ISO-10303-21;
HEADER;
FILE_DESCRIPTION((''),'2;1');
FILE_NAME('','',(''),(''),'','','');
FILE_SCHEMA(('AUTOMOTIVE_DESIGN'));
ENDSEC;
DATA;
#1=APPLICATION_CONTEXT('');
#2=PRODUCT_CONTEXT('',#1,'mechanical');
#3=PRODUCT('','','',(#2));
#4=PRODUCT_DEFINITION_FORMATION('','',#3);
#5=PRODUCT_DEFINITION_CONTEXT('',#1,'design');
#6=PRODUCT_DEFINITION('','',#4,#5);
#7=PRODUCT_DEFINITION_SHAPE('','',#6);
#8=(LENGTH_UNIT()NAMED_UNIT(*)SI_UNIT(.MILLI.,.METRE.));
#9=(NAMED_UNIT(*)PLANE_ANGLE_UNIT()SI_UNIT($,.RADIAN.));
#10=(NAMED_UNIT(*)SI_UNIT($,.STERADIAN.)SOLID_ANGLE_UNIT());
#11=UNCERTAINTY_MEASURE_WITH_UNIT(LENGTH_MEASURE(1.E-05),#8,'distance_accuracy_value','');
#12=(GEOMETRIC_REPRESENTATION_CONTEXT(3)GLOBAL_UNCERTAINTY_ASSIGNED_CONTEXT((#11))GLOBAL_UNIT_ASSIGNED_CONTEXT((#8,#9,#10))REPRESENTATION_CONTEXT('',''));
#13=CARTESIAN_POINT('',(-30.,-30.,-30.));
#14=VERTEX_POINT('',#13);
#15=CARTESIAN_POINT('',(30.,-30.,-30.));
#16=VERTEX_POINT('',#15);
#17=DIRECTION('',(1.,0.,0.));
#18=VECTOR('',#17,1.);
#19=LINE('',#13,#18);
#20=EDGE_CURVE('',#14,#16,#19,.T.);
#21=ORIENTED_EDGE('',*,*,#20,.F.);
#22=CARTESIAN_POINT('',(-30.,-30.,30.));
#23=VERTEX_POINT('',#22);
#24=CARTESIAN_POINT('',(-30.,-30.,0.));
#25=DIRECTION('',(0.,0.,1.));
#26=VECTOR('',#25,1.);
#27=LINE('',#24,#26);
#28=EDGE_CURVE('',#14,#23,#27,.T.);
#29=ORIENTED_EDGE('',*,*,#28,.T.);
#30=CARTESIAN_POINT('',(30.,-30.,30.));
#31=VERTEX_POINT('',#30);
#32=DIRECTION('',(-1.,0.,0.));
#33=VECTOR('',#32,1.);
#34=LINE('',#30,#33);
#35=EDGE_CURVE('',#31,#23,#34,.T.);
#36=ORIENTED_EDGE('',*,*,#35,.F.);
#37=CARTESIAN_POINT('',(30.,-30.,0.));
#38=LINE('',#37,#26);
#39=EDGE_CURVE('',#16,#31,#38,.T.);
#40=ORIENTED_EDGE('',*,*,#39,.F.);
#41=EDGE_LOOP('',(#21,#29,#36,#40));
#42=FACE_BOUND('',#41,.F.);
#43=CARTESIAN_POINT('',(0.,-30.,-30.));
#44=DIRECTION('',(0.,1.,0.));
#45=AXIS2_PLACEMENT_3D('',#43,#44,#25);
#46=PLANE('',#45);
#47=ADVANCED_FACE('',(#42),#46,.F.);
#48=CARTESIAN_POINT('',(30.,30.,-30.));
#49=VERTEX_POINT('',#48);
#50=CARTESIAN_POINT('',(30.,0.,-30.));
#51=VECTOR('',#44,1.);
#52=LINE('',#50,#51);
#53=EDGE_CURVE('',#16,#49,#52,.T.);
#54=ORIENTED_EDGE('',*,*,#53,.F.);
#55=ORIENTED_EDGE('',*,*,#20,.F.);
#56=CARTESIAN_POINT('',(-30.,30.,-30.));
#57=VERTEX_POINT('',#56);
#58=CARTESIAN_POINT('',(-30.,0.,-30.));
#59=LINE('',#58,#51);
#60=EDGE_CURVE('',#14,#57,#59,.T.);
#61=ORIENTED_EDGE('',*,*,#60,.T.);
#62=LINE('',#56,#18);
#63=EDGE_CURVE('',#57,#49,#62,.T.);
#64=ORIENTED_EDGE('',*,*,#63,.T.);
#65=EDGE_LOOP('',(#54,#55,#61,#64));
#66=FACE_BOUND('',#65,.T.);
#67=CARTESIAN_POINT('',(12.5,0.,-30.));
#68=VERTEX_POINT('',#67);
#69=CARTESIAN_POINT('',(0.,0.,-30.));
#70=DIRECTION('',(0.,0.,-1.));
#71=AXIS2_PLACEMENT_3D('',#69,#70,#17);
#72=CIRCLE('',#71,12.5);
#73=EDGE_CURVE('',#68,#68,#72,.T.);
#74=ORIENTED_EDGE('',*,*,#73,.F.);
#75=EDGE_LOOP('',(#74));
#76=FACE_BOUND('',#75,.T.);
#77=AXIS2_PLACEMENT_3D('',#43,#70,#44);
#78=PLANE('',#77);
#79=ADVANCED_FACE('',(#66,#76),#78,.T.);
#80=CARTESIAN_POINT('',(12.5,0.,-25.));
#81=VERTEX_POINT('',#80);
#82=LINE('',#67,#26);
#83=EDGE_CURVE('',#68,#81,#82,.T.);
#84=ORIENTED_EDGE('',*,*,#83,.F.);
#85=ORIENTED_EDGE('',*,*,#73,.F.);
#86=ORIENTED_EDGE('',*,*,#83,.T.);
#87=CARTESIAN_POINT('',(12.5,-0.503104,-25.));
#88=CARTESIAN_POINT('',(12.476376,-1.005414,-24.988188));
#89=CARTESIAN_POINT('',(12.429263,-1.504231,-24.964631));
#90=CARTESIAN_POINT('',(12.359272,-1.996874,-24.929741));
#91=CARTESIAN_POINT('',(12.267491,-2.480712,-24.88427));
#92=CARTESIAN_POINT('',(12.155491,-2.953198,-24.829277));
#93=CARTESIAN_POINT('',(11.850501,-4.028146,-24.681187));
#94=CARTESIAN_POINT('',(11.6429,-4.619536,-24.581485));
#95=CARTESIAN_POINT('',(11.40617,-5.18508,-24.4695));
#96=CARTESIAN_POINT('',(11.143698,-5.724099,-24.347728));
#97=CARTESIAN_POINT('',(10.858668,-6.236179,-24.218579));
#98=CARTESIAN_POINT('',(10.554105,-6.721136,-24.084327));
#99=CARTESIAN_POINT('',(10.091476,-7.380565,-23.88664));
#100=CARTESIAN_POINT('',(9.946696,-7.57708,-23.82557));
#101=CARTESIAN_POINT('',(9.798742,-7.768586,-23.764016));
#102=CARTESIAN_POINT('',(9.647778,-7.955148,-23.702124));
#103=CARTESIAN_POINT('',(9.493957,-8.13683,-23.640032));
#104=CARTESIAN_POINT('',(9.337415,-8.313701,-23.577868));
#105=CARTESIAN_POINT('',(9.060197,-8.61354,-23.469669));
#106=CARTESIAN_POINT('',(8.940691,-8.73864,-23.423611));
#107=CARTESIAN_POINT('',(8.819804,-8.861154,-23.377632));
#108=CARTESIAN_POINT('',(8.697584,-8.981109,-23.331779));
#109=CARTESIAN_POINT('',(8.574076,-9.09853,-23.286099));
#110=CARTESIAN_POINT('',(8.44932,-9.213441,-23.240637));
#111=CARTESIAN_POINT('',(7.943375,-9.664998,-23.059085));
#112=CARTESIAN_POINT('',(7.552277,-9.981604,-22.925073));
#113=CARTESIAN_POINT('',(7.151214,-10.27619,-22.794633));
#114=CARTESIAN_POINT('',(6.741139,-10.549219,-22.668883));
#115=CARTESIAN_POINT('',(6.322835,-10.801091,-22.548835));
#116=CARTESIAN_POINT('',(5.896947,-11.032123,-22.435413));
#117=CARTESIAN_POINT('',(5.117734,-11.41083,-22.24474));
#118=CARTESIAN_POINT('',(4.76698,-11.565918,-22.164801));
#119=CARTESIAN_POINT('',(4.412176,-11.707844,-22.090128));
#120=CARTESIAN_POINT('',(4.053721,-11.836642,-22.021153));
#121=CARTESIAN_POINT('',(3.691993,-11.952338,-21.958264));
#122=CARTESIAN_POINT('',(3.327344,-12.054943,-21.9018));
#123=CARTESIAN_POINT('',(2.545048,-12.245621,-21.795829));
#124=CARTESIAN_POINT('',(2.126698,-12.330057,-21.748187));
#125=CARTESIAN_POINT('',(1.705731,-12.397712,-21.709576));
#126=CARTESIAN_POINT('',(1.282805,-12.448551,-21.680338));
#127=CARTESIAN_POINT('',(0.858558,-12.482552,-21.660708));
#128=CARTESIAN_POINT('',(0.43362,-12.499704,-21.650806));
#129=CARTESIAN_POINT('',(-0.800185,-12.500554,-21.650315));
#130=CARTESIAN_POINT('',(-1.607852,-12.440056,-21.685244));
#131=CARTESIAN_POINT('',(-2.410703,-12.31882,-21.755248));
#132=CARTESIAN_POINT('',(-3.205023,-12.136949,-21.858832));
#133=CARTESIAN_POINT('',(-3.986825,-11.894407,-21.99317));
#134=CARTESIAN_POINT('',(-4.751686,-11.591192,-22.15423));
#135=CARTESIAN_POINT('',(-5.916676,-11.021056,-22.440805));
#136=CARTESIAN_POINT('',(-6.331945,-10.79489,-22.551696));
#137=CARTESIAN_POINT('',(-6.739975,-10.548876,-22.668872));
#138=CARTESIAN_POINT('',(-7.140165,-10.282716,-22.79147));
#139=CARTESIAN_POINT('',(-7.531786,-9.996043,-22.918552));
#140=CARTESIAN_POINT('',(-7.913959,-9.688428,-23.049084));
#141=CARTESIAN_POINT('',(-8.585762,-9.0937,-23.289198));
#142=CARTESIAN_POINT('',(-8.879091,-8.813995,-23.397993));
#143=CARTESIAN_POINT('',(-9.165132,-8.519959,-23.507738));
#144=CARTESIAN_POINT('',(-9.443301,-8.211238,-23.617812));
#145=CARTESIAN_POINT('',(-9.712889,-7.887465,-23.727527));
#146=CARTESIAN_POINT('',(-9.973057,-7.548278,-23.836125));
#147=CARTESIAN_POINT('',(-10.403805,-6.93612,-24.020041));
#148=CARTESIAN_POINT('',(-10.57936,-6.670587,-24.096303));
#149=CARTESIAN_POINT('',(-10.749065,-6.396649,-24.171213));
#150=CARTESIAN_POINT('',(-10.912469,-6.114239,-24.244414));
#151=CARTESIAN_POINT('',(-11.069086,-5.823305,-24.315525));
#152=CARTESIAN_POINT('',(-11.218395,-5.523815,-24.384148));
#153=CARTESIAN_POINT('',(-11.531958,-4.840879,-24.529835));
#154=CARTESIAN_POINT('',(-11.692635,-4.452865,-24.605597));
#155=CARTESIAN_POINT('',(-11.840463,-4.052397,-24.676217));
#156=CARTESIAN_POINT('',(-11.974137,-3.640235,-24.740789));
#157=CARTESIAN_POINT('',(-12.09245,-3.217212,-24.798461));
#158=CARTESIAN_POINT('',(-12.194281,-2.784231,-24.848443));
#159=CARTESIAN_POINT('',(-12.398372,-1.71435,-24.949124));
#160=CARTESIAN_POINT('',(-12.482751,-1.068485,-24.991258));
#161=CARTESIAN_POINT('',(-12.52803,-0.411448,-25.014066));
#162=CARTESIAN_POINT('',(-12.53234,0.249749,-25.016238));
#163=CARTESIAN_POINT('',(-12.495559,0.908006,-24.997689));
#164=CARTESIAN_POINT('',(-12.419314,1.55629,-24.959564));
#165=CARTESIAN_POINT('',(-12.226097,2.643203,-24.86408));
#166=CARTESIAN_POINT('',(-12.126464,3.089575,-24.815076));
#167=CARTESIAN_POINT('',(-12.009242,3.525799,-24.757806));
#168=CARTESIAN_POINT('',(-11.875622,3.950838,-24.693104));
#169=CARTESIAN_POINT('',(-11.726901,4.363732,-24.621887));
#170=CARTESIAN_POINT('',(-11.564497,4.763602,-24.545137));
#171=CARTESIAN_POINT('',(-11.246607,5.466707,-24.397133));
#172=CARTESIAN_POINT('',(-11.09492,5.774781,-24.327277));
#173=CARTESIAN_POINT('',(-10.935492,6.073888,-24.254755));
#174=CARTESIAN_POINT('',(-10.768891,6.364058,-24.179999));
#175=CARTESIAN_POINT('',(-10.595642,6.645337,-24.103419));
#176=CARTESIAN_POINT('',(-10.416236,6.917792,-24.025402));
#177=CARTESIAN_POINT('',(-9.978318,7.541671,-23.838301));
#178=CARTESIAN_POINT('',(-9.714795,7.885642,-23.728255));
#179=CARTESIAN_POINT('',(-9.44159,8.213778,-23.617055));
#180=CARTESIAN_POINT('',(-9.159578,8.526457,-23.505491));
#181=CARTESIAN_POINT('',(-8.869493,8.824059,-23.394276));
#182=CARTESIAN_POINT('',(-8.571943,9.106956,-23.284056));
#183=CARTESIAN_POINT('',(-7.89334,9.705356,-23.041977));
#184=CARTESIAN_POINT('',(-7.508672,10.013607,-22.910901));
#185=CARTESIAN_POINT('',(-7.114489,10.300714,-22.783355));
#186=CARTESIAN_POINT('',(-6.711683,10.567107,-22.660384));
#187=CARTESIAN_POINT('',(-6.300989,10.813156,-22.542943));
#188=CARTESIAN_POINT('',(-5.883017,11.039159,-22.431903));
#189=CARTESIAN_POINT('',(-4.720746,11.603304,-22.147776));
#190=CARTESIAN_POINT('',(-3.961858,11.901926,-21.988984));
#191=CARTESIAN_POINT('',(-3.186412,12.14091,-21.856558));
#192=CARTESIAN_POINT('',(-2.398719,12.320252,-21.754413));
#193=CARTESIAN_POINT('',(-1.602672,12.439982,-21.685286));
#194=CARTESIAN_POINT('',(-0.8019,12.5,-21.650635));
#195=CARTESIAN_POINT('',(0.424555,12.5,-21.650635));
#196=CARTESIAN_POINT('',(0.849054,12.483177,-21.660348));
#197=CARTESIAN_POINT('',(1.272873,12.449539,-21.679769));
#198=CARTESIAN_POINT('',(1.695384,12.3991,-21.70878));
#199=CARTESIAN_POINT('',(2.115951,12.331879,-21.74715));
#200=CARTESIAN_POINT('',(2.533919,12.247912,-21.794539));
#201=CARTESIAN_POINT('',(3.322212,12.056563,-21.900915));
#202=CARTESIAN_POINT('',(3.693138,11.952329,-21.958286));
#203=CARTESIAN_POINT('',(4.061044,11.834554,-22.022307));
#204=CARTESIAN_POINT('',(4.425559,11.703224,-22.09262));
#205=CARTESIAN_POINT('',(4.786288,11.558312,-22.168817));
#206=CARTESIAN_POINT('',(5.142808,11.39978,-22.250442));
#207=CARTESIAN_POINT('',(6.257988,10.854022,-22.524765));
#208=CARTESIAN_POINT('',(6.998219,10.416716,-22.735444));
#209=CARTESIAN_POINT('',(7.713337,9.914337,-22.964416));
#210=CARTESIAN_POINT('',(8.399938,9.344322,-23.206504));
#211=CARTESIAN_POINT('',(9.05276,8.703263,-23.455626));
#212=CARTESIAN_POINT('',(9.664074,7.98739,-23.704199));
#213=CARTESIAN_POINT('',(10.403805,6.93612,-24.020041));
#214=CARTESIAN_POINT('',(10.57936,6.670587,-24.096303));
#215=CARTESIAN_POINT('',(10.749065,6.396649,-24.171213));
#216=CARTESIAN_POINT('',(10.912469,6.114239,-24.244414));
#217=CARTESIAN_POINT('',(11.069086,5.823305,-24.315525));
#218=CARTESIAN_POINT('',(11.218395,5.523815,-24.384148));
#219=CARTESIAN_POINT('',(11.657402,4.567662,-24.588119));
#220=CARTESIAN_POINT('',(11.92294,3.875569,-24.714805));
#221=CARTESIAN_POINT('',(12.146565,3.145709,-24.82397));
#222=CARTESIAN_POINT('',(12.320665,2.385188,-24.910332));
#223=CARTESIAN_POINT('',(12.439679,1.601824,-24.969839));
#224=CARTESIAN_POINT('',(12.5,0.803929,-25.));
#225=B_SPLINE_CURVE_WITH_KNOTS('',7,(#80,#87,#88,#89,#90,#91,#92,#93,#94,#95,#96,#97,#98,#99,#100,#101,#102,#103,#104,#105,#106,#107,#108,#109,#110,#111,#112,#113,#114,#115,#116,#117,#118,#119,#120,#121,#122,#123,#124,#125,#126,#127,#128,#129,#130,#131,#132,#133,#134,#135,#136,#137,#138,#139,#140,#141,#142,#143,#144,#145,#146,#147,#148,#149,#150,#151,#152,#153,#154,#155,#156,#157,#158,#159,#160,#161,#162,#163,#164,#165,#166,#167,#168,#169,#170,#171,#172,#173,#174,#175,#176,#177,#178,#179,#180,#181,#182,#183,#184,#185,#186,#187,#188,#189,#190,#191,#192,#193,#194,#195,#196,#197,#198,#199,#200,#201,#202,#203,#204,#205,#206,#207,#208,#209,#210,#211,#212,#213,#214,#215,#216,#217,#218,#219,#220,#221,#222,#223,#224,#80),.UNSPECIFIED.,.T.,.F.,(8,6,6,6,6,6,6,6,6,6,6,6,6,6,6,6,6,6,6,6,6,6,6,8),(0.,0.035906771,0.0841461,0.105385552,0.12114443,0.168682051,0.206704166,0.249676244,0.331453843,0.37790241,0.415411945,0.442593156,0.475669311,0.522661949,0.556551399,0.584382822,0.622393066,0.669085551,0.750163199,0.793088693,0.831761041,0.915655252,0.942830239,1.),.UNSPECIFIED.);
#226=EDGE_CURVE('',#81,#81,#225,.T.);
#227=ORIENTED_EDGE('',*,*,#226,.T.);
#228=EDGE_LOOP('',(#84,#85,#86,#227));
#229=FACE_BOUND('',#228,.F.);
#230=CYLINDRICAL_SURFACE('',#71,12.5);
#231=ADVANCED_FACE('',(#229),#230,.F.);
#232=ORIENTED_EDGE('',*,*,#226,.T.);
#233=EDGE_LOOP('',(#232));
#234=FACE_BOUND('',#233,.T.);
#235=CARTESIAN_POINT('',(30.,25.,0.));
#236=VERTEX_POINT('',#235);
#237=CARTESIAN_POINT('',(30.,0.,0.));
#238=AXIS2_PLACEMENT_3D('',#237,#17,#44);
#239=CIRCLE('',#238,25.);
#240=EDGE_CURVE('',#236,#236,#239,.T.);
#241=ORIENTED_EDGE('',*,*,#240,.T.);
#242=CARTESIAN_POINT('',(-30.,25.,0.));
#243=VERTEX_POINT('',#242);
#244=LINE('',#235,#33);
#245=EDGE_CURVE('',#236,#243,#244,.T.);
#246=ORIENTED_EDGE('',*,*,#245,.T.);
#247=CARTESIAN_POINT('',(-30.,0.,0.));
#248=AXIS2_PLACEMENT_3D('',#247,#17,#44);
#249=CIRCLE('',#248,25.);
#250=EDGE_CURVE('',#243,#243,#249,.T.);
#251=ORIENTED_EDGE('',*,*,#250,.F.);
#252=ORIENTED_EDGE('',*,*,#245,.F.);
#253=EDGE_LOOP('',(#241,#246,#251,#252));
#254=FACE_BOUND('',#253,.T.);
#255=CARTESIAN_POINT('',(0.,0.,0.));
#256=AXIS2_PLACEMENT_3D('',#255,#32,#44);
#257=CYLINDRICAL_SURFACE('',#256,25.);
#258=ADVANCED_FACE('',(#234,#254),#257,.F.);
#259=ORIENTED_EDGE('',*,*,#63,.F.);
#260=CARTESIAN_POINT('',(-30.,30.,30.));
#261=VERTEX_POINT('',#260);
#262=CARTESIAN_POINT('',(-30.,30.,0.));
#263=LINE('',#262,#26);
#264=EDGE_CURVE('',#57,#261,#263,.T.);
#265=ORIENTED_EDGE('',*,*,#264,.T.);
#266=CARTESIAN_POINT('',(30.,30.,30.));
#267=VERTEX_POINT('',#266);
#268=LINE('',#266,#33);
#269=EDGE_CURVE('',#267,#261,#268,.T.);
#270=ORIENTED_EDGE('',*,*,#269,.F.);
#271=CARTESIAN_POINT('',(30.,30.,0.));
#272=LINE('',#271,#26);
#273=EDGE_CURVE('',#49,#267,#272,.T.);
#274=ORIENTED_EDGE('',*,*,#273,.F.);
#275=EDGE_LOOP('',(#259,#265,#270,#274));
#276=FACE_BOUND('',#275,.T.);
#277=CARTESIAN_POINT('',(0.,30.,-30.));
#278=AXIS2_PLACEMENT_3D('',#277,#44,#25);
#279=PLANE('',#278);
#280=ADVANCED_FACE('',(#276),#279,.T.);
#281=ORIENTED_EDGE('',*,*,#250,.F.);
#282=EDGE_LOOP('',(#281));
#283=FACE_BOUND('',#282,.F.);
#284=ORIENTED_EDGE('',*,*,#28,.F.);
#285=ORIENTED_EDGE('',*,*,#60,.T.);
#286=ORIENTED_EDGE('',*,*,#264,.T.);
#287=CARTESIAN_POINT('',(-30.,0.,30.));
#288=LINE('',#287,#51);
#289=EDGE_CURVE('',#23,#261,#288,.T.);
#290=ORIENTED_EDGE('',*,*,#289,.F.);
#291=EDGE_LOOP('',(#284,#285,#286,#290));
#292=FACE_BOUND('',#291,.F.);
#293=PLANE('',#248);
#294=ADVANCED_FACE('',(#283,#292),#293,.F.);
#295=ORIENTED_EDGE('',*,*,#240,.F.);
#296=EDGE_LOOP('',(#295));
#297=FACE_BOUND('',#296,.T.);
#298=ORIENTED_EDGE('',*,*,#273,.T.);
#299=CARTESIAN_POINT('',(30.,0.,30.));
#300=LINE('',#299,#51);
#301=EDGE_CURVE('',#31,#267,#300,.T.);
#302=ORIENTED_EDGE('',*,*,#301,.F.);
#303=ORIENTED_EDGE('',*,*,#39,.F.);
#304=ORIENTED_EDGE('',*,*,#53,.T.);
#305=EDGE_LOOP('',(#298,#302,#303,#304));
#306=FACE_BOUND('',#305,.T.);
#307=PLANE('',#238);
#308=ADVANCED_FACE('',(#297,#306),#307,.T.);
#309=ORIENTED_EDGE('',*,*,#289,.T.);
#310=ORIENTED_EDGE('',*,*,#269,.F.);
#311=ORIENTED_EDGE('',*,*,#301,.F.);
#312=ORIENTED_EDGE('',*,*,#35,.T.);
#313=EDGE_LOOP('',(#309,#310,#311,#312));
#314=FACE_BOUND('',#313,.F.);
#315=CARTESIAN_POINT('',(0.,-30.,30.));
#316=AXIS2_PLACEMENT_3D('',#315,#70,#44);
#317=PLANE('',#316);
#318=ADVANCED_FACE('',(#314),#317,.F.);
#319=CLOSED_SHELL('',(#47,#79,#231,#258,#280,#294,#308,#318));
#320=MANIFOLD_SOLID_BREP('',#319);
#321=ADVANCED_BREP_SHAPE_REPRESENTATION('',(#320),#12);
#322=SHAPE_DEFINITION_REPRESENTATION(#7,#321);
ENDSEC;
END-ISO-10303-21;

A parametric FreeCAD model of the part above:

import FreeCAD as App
import Part
import Sketcher


def add_polygon(sketch, points):
    """Adds a closed chain of lines whose ends are joined by coincident constraints."""
    first, n = sketch.GeometryCount, len(points)
    for a, b in zip(points, points[1:] + points[:1]):
        sketch.addGeometry(Part.LineSegment(App.Vector(*a, 0), App.Vector(*b, 0)), False)
    for i in range(n):
        sketch.addConstraint(Sketcher.Constraint("Coincident", first + i, 2, first + (i + 1) % n, 1))

doc = App.newDocument("Part")
params = doc.addObject("Spreadsheet::Sheet", "Params")
for row, (alias, value) in enumerate([
    ("sketch1_diameter", "50 mm"),
    ("sketch1_width", "60 mm"),
    ("pad1_length", "60 mm"),
    ("sketch2_diameter", "25 mm"),
    ("pocket1_length", "25 mm"),
    ("pocket2_length", "25 mm"),
], start=1):
    params.set(f"A{row}", alias)
    params.set(f"B{row}", "=" + value)
    params.setAlias(f"B{row}", alias)

body = doc.addObject("PartDesign::Body", "Body")

# Sketch on YZ plane
sketch1 = body.newObject("Sketcher::SketchObject", "Sketch")
sketch1.AttachmentSupport = (doc.getObject("YZ_Plane"), [""])
sketch1.MapMode = "FlatFace"
add_polygon(sketch1, [(-30, 30), (-30, -30), (30, -30), (30, 30)])  # lines 0-3
sketch1.addGeometry(Part.Circle(App.Vector(0, 0, 0), App.Vector(0, 0, 1), 25), False)  # 4
sketch1.addConstraint([
    Sketcher.Constraint("Vertical", 0),
    Sketcher.Constraint("Horizontal", 1),
    Sketcher.Constraint("Vertical", 2),
    Sketcher.Constraint("Horizontal", 3),
    Sketcher.Constraint("Coincident", 4, 3, -1, 1),
    Sketcher.Constraint("Symmetric", 0, 2, 2, 2, -1, 1),
    Sketcher.Constraint("Equal", 3, 0),
    Sketcher.Constraint("Diameter", 4, 50.0),
    Sketcher.Constraint("DistanceX", 1, 1, 1, 2, 60.0),
])
sketch1.setExpression("Constraints[11]", "Params.sketch1_diameter")
sketch1.setExpression("Constraints[12]", "Params.sketch1_width")
pad1 = body.newObject("PartDesign::Pad", "Pad")
pad1.Profile = sketch1
pad1.setExpression("Length", "Params.pad1_length")
pad1.Midplane = True

# Sketch on XY plane
sketch2 = body.newObject("Sketcher::SketchObject", "Sketch001")
sketch2.AttachmentSupport = (doc.getObject("XY_Plane"), [""])
sketch2.MapMode = "FlatFace"
sketch2.AttachmentOffset = App.Placement(App.Vector(0, 0, -30), App.Rotation())
sketch2.addGeometry(Part.Circle(App.Vector(0, 0, 0), App.Vector(0, 0, 1), 12), False)
sketch2.addConstraint([
    Sketcher.Constraint("Coincident", 0, 3, -1, 1),
    Sketcher.Constraint("Diameter", 0, 25.0),
])
sketch2.setExpression("Constraints[1]", "Params.sketch2_diameter")
pocket1 = body.newObject("PartDesign::Pocket", "Pocket")
pocket1.Profile = sketch2
pocket1.setExpression("Length", "Params.pocket1_length")
pocket1.Reversed = True
pocket2 = body.newObject("PartDesign::Pocket", "Pocket001")
pocket2.Profile = sketch2
pocket2.setExpression("Length", "Params.pocket2_length")
pocket2.Reversed = True

doc.recompute()
